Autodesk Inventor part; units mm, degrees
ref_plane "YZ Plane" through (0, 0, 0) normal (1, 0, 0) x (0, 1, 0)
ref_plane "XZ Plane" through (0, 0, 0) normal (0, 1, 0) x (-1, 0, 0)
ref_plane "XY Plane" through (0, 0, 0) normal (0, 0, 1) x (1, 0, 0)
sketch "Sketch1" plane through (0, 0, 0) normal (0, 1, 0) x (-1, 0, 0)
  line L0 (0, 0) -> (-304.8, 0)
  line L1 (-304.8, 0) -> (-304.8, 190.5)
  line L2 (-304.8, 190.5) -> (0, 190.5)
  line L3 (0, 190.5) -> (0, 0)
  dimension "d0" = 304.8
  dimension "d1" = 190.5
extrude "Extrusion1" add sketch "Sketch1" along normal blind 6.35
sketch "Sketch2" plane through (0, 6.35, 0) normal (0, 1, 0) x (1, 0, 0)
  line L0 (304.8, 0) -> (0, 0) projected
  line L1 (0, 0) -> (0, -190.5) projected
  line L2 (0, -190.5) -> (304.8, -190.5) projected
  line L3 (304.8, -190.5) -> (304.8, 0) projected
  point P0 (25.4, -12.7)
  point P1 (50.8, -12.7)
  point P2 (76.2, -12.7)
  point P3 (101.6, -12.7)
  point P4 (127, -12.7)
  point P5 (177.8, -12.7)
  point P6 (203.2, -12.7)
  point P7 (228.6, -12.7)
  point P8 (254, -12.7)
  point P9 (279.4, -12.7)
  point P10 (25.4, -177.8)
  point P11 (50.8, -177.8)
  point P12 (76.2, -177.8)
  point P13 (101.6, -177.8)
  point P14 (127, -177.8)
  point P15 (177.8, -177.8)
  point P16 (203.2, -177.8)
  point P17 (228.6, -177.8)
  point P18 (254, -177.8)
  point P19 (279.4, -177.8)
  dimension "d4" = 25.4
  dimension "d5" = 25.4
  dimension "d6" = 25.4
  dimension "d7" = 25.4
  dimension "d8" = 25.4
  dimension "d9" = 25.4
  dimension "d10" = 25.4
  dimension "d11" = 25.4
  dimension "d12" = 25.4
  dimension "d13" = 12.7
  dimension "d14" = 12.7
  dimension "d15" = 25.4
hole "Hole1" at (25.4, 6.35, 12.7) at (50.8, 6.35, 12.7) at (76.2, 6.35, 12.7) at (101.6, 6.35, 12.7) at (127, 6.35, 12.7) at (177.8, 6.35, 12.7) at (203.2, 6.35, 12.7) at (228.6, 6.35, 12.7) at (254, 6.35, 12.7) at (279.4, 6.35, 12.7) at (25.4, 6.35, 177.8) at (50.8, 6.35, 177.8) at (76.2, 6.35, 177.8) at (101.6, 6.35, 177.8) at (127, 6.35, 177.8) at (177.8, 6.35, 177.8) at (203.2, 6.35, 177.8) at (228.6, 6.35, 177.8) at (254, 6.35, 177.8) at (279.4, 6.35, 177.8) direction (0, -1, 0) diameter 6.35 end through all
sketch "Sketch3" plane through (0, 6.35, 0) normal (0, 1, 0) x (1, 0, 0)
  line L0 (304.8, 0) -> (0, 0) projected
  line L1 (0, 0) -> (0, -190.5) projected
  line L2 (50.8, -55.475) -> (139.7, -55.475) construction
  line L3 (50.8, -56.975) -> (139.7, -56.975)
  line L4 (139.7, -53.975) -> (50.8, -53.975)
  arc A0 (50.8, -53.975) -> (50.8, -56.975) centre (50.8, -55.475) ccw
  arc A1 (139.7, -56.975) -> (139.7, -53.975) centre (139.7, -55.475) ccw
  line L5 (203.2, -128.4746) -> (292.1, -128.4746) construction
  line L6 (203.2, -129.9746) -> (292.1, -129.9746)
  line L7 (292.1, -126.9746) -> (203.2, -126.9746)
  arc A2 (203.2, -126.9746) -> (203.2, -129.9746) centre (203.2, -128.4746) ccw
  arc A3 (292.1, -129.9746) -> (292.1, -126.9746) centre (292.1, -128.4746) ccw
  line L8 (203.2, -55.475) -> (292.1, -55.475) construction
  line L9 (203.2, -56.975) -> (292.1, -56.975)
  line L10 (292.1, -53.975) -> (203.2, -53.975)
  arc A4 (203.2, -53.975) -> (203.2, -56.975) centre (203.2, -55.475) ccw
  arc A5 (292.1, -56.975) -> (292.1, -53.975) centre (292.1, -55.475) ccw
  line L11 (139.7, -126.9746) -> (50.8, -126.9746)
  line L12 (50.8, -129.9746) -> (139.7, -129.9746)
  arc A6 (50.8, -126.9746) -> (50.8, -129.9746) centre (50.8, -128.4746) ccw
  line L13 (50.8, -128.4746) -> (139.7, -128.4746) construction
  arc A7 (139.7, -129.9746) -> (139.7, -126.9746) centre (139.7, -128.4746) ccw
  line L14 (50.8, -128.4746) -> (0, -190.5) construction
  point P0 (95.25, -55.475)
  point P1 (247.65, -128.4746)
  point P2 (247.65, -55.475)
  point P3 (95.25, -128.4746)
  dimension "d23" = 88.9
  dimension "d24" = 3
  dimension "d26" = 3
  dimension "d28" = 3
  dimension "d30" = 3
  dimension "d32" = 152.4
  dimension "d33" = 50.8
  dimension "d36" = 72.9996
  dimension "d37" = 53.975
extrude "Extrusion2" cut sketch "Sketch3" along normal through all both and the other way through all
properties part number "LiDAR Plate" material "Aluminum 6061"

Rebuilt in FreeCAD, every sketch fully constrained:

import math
import FreeCAD as App
import Part
import Sketcher

V = App.Vector
Q = App.Units.Quantity

doc = App.newDocument("Part")
params = doc.addObject("Spreadsheet::Sheet", "Params")
for row, (alias, value) in enumerate([
    ("sketch1_width", "12 in"),
    ("sketch1_height", "7.5 in"),
    ("pad1_length", "0.25 in"),
    ("sketch2_diameter", "0.25 in"),
    ("hole_diameter", "0.25 in"),
    ("sketch3_width", "3.5 in"),
], start=1):
    params.set(f"A{row}", alias)
    params.set(f"B{row}", "=" + value)
    params.setAlias(f"B{row}", alias)

body = doc.addObject("PartDesign::Body", "Body")

# Sketch on XZ plane
sketch1 = body.newObject("Sketcher::SketchObject", "Sketch")
sketch1.AttachmentSupport = (doc.getObject("XZ_Plane"), [""])
sketch1.MapMode = "FlatFace"
sketch1.addGeometry([
    Part.LineSegment(V(304.8, 0, 0), V(0, 0, 0)),
    Part.LineSegment(V(0, 0, 0), V(0, 190.5, 0)),
    Part.LineSegment(V(0, 190.5, 0), V(304.8, 190.5, 0)),
    Part.LineSegment(V(304.8, 190.5, 0), V(304.8, 0, 0)),
], False)
sketch1.addConstraint([
    Sketcher.Constraint("Coincident", 0, 2, 1, 1),
    Sketcher.Constraint("Coincident", 1, 2, 2, 1),
    Sketcher.Constraint("Coincident", 2, 2, 3, 1),
    Sketcher.Constraint("Coincident", 3, 2, 0, 1),
    Sketcher.Constraint("Horizontal", 0),
    Sketcher.Constraint("Vertical", 1),
    Sketcher.Constraint("Horizontal", 2),
    Sketcher.Constraint("Vertical", 3),
    Sketcher.Constraint("Coincident", 0, 2, -1, 1),
    Sketcher.Constraint("DistanceX", 0, 2, 0, 1, Q("12 in")),
    Sketcher.Constraint("DistanceY", 1, 1, 1, 2, Q("7.5 in")),
])
sketch1.setExpression("Constraints[9]", "Params.sketch1_width")
sketch1.setExpression("Constraints[10]", "Params.sketch1_height")
pad1 = body.newObject("PartDesign::Pad", "Pad")
pad1.Profile = sketch1
pad1.setExpression("Length", "Params.pad1_length")
pad1.Reversed = True

# Sketch on XZ plane
sketch2 = body.newObject("Sketcher::SketchObject", "Sketch001")
sketch2.AttachmentSupport = (doc.getObject("XZ_Plane"), [""])
sketch2.MapMode = "FlatFace"
sketch2.AttachmentOffset = App.Placement(V(0, 0, -0.25 * 25.4), App.Rotation())
sketch2.addGeometry([
    Part.Circle(V(25.4, 12.7, 0), V(0, 0, 1), 3.175),  # 0
    Part.Circle(V(50.8, 12.7, 0), V(0, 0, 1), 3.175),  # 1
    Part.Circle(V(76.2, 12.7, 0), V(0, 0, 1), 3.175),  # 2
    Part.Circle(V(101.6, 12.7, 0), V(0, 0, 1), 3.175),  # 3
    Part.Circle(V(127, 12.7, 0), V(0, 0, 1), 3.175),  # 4
    Part.Circle(V(177.8, 12.7, 0), V(0, 0, 1), 3.175),  # 5
    Part.Circle(V(203.2, 12.7, 0), V(0, 0, 1), 3.175),  # 6
    Part.Circle(V(228.6, 12.7, 0), V(0, 0, 1), 3.175),  # 7
    Part.Circle(V(254, 12.7, 0), V(0, 0, 1), 3.175),  # 8
    Part.Circle(V(279.4, 12.7, 0), V(0, 0, 1), 3.175),  # 9
    Part.Circle(V(25.4, 177.8, 0), V(0, 0, 1), 3.175),  # 10
    Part.Circle(V(50.8, 177.8, 0), V(0, 0, 1), 3.175),  # 11
    Part.Circle(V(76.2, 177.8, 0), V(0, 0, 1), 3.175),  # 12
    Part.Circle(V(101.6, 177.8, 0), V(0, 0, 1), 3.175),  # 13
    Part.Circle(V(127, 177.8, 0), V(0, 0, 1), 3.175),  # 14
    Part.Circle(V(177.8, 177.8, 0), V(0, 0, 1), 3.175),  # 15
    Part.Circle(V(203.2, 177.8, 0), V(0, 0, 1), 3.175),  # 16
    Part.Circle(V(228.6, 177.8, 0), V(0, 0, 1), 3.175),  # 17
    Part.Circle(V(254, 177.8, 0), V(0, 0, 1), 3.175),  # 18
    Part.Circle(V(279.4, 177.8, 0), V(0, 0, 1), 3.175),  # 19
], False)
sketch2.addConstraint([
    Sketcher.Constraint("Equal", 0, 1),
    Sketcher.Constraint("Equal", 1, 2),
    Sketcher.Constraint("Equal", 2, 3),
    Sketcher.Constraint("Equal", 3, 4),
    Sketcher.Constraint("Equal", 4, 5),
    Sketcher.Constraint("Equal", 5, 6),
    Sketcher.Constraint("Equal", 6, 7),
    Sketcher.Constraint("Equal", 7, 8),
    Sketcher.Constraint("Equal", 8, 9),
    Sketcher.Constraint("Equal", 9, 10),
    Sketcher.Constraint("Equal", 10, 11),
    Sketcher.Constraint("Equal", 11, 12),
    Sketcher.Constraint("Equal", 12, 13),
    Sketcher.Constraint("Equal", 13, 14),
    Sketcher.Constraint("Equal", 14, 15),
    Sketcher.Constraint("Equal", 15, 16),
    Sketcher.Constraint("Equal", 16, 17),
    Sketcher.Constraint("Equal", 17, 18),
    Sketcher.Constraint("Equal", 18, 19),
    Sketcher.Constraint("Horizontal", 0, 3, 1, 3),
    Sketcher.Constraint("Horizontal", 1, 3, 2, 3),
    Sketcher.Constraint("Horizontal", 2, 3, 3, 3),
    Sketcher.Constraint("Horizontal", 3, 3, 4, 3),
    Sketcher.Constraint("Horizontal", 4, 3, 5, 3),
    Sketcher.Constraint("Horizontal", 5, 3, 6, 3),
    Sketcher.Constraint("Horizontal", 6, 3, 7, 3),
    Sketcher.Constraint("Horizontal", 7, 3, 8, 3),
    Sketcher.Constraint("Horizontal", 8, 3, 9, 3),
    Sketcher.Constraint("Horizontal", 10, 3, 11, 3),
    Sketcher.Constraint("Horizontal", 11, 3, 12, 3),
    Sketcher.Constraint("Horizontal", 12, 3, 13, 3),
    Sketcher.Constraint("Horizontal", 13, 3, 14, 3),
    Sketcher.Constraint("Horizontal", 14, 3, 15, 3),
    Sketcher.Constraint("Horizontal", 15, 3, 16, 3),
    Sketcher.Constraint("Horizontal", 16, 3, 17, 3),
    Sketcher.Constraint("Horizontal", 17, 3, 18, 3),
    Sketcher.Constraint("Horizontal", 18, 3, 19, 3),
    Sketcher.Constraint("Vertical", 0, 3, 10, 3),
    Sketcher.Constraint("Vertical", 1, 3, 11, 3),
    Sketcher.Constraint("Vertical", 2, 3, 12, 3),
    Sketcher.Constraint("Vertical", 3, 3, 13, 3),
    Sketcher.Constraint("Vertical", 4, 3, 14, 3),
    Sketcher.Constraint("Vertical", 5, 3, 15, 3),
    Sketcher.Constraint("Vertical", 6, 3, 16, 3),
    Sketcher.Constraint("Vertical", 7, 3, 17, 3),
    Sketcher.Constraint("Vertical", 8, 3, 18, 3),
    Sketcher.Constraint("Vertical", 9, 3, 19, 3),
    Sketcher.Constraint("Diameter", 0, Q("0.25 in")),
    Sketcher.Constraint("DistanceX", -1, 1, 0, 3, Q("1 in")),
    Sketcher.Constraint("DistanceX", -1, 1, 1, 3, Q("2 in")),
    Sketcher.Constraint("DistanceX", -1, 1, 2, 3, Q("3 in")),
    Sketcher.Constraint("DistanceX", -1, 1, 3, 3, Q("4 in")),
    Sketcher.Constraint("DistanceX", -1, 1, 4, 3, Q("5 in")),
    Sketcher.Constraint("DistanceX", -1, 1, 5, 3, Q("7 in")),
    Sketcher.Constraint("DistanceX", -1, 1, 6, 3, Q("8 in")),
    Sketcher.Constraint("DistanceX", -1, 1, 7, 3, Q("9 in")),
    Sketcher.Constraint("DistanceX", -1, 1, 8, 3, Q("10 in")),
    Sketcher.Constraint("DistanceX", -1, 1, 9, 3, Q("11 in")),
    Sketcher.Constraint("DistanceY", -1, 1, 10, 3, Q("7 in")),
    Sketcher.Constraint("DistanceY", -1, 1, 0, 3, Q("0.5 in")),
])
sketch2.setExpression("Constraints[47]", "Params.sketch2_diameter")
doc.recompute()
hole = body.newObject("PartDesign::Hole", "Hole")
hole.Profile = sketch2
hole.ThreadType = "None"
hole.setExpression("Diameter", "Params.hole_diameter")
hole.DepthType = "ThroughAll"
hole.Reversed = True

# Sketch on XZ plane
sketch3 = body.newObject("Sketcher::SketchObject", "Sketch002")
sketch3.AttachmentSupport = (doc.getObject("XZ_Plane"), [""])
sketch3.MapMode = "FlatFace"
sketch3.AttachmentOffset = App.Placement(V(0, 0, -0.25 * 25.4), App.Rotation())
sketch3.addGeometry([
    Part.ArcOfCircle(Part.Circle(V(50.8, 55.475, 0), V(0, 0, 1), 1.5), math.radians(90), math.radians(270)),  # 0
    Part.LineSegment(V(50.8, 56.975, 0), V(139.7, 56.975, 0)),  # 1
    Part.ArcOfCircle(Part.Circle(V(139.7, 55.475, 0), V(0, 0, 1), 1.5), math.radians(-90), math.radians(90)),  # 2
    Part.LineSegment(V(139.7, 53.975, 0), V(50.8, 53.975, 0)),  # 3
    Part.ArcOfCircle(Part.Circle(V(203.2, 128.4746, 0), V(0, 0, 1), 1.5), math.radians(90), math.radians(270)),  # 4
    Part.LineSegment(V(203.2, 129.9746, 0), V(292.1, 129.9746, 0)),  # 5
    Part.ArcOfCircle(Part.Circle(V(292.1, 128.4746, 0), V(0, 0, 1), 1.5), math.radians(-90), math.radians(90)),  # 6
    Part.LineSegment(V(292.1, 126.9746, 0), V(203.2, 126.9746, 0)),  # 7
    Part.ArcOfCircle(Part.Circle(V(203.2, 55.475, 0), V(0, 0, 1), 1.5), math.radians(90), math.radians(270)),  # 8
    Part.LineSegment(V(203.2, 56.975, 0), V(292.1, 56.975, 0)),  # 9
    Part.ArcOfCircle(Part.Circle(V(292.1, 55.475, 0), V(0, 0, 1), 1.5), math.radians(-90), math.radians(90)),  # 10
    Part.LineSegment(V(292.1, 53.975, 0), V(203.2, 53.975, 0)),  # 11
    Part.ArcOfCircle(Part.Circle(V(139.7, 128.4746, 0), V(0, 0, 1), 1.5), math.radians(-90), math.radians(90)),  # 12
    Part.LineSegment(V(139.7, 126.9746, 0), V(50.8, 126.9746, 0)),  # 13
    Part.ArcOfCircle(Part.Circle(V(50.8, 128.4746, 0), V(0, 0, 1), 1.5), math.radians(90), math.radians(270)),  # 14
    Part.LineSegment(V(50.8, 129.9746, 0), V(139.7, 129.9746, 0)),  # 15
], False)
sketch3.addConstraint([
    Sketcher.Constraint("Tangent", 0, 1, 1, 1),
    Sketcher.Constraint("Tangent", 1, 2, 2, 2),
    Sketcher.Constraint("Tangent", 2, 1, 3, 1),
    Sketcher.Constraint("Tangent", 3, 2, 0, 2),
    Sketcher.Constraint("Tangent", 4, 1, 5, 1),
    Sketcher.Constraint("Tangent", 5, 2, 6, 2),
    Sketcher.Constraint("Tangent", 6, 1, 7, 1),
    Sketcher.Constraint("Tangent", 7, 2, 4, 2),
    Sketcher.Constraint("Tangent", 8, 1, 9, 1),
    Sketcher.Constraint("Tangent", 9, 2, 10, 2),
    Sketcher.Constraint("Tangent", 10, 1, 11, 1),
    Sketcher.Constraint("Tangent", 11, 2, 8, 2),
    Sketcher.Constraint("Tangent", 12, 1, 13, 1),
    Sketcher.Constraint("Tangent", 13, 2, 14, 2),
    Sketcher.Constraint("Tangent", 14, 1, 15, 1),
    Sketcher.Constraint("Tangent", 15, 2, 12, 2),
    Sketcher.Constraint("Horizontal", 1),
    Sketcher.Constraint("Horizontal", 3),
    Sketcher.Constraint("Horizontal", 5),
    Sketcher.Constraint("Horizontal", 7),
    Sketcher.Constraint("Horizontal", 9),
    Sketcher.Constraint("Horizontal", 11),
    Sketcher.Constraint("Horizontal", 13),
    Sketcher.Constraint("Horizontal", 15),
    Sketcher.Constraint("Equal", 2, 4),
    Sketcher.Constraint("Equal", 6, 8),
    Sketcher.Constraint("Equal", 10, 12),
    Sketcher.Constraint("Horizontal", 2, 3, 8, 3),
    Sketcher.Constraint("Horizontal", 6, 3, 12, 3),
    Sketcher.Constraint("Vertical", 4, 3, 8, 3),
    Sketcher.Constraint("Vertical", 6, 3, 10, 3),
    Sketcher.Constraint("Vertical", 2, 3, 12, 3),
    Sketcher.Constraint("Vertical", 0, 3, 14, 3),
    Sketcher.Constraint("Equal", 3, 5),
    Sketcher.Constraint("DistanceX", 1, 1, 1, 2, Q("3.5 in")),
    Sketcher.Constraint("DistanceX", -1, 1, 0, 3, Q("2 in")),
    Sketcher.Constraint("DistanceX", 0, 3, 4, 3, Q("6 in")),
    Sketcher.Constraint("Radius", 0, 1.5),
    Sketcher.Constraint("DistanceY", -1, 1, 2, 1, Q("2.125 in")),
    Sketcher.Constraint("DistanceY", 2, 3, 4, 3, Q("2.874 in")),
])
sketch3.setExpression("Constraints[34]", "Params.sketch3_width")
pocket1 = body.newObject("PartDesign::Pocket", "Pocket")
pocket1.Profile = sketch3
pocket1.Type = "ThroughAll"
pocket1.Midplane = True

doc.recompute()
